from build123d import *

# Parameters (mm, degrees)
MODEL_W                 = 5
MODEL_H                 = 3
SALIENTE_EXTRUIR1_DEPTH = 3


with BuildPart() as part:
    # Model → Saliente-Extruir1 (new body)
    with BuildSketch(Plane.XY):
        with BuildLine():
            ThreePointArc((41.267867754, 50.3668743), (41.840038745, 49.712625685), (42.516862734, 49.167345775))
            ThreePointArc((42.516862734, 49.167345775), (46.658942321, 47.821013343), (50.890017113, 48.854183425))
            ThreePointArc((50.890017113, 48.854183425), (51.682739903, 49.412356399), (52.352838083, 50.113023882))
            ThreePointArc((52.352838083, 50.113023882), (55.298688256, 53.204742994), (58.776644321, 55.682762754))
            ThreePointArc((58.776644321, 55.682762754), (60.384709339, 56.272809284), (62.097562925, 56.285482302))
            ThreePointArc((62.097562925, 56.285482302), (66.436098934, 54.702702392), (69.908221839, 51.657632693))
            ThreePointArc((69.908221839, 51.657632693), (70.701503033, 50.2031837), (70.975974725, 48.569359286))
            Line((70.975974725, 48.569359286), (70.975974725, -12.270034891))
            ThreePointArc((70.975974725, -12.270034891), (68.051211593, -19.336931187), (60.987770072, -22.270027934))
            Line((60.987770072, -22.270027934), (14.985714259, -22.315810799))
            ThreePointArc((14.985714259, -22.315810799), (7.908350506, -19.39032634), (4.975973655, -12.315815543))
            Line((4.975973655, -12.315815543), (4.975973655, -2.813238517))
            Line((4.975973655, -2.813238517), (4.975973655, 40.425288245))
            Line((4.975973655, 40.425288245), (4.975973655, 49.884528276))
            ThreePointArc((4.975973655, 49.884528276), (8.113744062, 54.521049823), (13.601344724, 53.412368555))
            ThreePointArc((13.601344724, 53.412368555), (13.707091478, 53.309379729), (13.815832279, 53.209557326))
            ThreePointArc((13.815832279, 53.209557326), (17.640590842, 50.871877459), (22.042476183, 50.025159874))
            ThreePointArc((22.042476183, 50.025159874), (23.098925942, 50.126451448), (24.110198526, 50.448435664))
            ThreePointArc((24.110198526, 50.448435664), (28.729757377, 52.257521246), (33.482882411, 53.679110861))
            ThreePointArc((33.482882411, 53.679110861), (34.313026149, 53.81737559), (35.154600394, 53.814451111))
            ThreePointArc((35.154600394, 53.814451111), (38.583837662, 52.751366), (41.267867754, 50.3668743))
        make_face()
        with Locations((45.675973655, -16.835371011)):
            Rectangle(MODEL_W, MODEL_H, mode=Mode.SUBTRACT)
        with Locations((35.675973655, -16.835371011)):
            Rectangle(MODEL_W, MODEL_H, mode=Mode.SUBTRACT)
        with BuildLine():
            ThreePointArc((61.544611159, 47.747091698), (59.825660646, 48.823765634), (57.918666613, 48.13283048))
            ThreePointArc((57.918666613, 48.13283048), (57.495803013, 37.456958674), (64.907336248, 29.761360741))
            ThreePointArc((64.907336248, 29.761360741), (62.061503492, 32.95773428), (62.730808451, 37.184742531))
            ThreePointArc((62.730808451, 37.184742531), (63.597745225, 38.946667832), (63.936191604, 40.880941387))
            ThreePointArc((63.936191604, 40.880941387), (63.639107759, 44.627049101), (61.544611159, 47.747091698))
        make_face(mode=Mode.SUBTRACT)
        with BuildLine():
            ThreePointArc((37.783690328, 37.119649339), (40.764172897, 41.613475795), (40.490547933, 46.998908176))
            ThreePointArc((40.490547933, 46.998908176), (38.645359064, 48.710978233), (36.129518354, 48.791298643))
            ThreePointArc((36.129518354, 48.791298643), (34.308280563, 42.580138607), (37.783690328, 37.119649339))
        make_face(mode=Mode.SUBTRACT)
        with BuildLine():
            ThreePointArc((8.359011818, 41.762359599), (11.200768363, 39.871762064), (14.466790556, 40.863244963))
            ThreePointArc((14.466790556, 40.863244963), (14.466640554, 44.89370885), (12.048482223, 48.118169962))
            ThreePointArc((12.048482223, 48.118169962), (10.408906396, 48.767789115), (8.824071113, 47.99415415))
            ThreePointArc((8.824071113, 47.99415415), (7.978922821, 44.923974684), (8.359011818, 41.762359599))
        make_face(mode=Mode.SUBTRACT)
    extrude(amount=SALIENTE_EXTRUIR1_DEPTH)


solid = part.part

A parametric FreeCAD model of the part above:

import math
import FreeCAD as App
import Part
import Sketcher


def add_polygon(sketch, points):
    """Adds a closed chain of lines whose ends are joined by coincident constraints."""
    first, n = sketch.GeometryCount, len(points)
    for a, b in zip(points, points[1:] + points[:1]):
        sketch.addGeometry(Part.LineSegment(App.Vector(*a, 0), App.Vector(*b, 0)), False)
    for i in range(n):
        sketch.addConstraint(Sketcher.Constraint("Coincident", first + i, 2, first + (i + 1) % n, 1))

doc = App.newDocument("Part")
body = doc.addObject("PartDesign::Body", "Body")

# Sketch on XY plane
sketch1 = body.newObject("Sketcher::SketchObject", "Sketch")
sketch1.AttachmentSupport = (doc.getObject("XY_Plane"), [""])
sketch1.MapMode = "FlatFace"
sketch1.addGeometry(Part.ArcOfCircle(Part.Circle(App.Vector(45.303439, 53.318851, 0), App.Vector(0, 0, 1), 5), math.radians(-143.814938), math.radians(-123.870333)), False)  # 0
sketch1.addGeometry(Part.ArcOfCircle(Part.Circle(App.Vector(34.410126, 45.350511, 0), App.Vector(0, 0, 1), 8.496618), math.radians(36.185062), math.radians(84.973293)), False)  # 1
sketch1.addGeometry(Part.ArcOfCircle(Part.Circle(App.Vector(34.7165, 48.833681, 0), App.Vector(0, 0, 1), 5), math.radians(84.973293), math.radians(104.283711)), False)  # 2
sketch1.addGeometry(Part.ArcOfCircle(Part.Circle(App.Vector(48.298899, -4.515558, 0), App.Vector(0, 0, 1), 60.051093), math.radians(104.283711), math.radians(113.753462)), False)  # 3
sketch1.addGeometry(Part.ArcOfCircle(Part.Circle(App.Vector(22.096189, 55.024871, 0), App.Vector(0, 0, 1), 5), math.radians(-90.61551), math.radians(-66.246538)), False)  # 4
sketch1.addGeometry(Part.ArcOfCircle(Part.Circle(App.Vector(22.177489, 62.592603, 0), App.Vector(0, 0, 1), 12.568168), math.radians(-131.705679), math.radians(-90.61551)), False)  # 5
sketch1.addGeometry(Part.ArcOfCircle(Part.Circle(App.Vector(17.142354, 56.942418, 0), App.Vector(0, 0, 1), 5), math.radians(-135.088802), math.radians(-131.705679)), False)  # 6
sketch1.addGeometry(Part.ArcOfCircle(Part.Circle(App.Vector(10.025303, 49.847395, 0), App.Vector(0, 0, 1), 5.049466), math.radians(44.911198), math.radians(179.578648)), False)  # 7
sketch1.addGeometry(Part.LineSegment(App.Vector(4.975974, 49.884528, 0), App.Vector(4.975974, -12.315816, 0)), False)  # 8
sketch1.addGeometry(Part.ArcOfCircle(Part.Circle(App.Vector(14.975974, -12.315816, 0), App.Vector(0, 0, 1), 10), math.radians(-180), math.radians(-89.94419)), False)  # 9
sketch1.addGeometry(Part.LineSegment(App.Vector(14.985714, -22.315811, 0), App.Vector(60.98777, -22.270028, 0)), False)  # 10
sketch1.addGeometry(Part.ArcOfCircle(Part.Circle(App.Vector(60.975975, -12.270035, 0), App.Vector(0, 0, 1), 10), math.radians(-89.932418), math.radians(0)), False)  # 11
sketch1.addGeometry(Part.LineSegment(App.Vector(70.975975, -12.270035, 0), App.Vector(70.975975, 48.569359, 0)), False)  # 12
sketch1.addGeometry(Part.ArcOfCircle(Part.Circle(App.Vector(65.975975, 48.569359, 0), App.Vector(0, 0, 1), 5), math.radians(0), math.radians(38.145068)), False)  # 13
sketch1.addGeometry(Part.ArcOfCircle(Part.Circle(App.Vector(60.039709, 43.907188, 0), App.Vector(0, 0, 1), 12.548185), math.radians(38.145068), math.radians(80.561077)), False)  # 14
sketch1.addGeometry(Part.ArcOfCircle(Part.Circle(App.Vector(61.277582, 51.353177, 0), App.Vector(0, 0, 1), 5), math.radians(80.561077), math.radians(120.012412)), False)  # 15
sketch1.addGeometry(Part.ArcOfCircle(Part.Circle(App.Vector(70.006817, 36.24126, 0), App.Vector(0, 0, 1), 22.451922), math.radians(120.012412), math.radians(141.841208)), False)  # 16
sketch1.addGeometry(Part.ArcOfCircle(Part.Circle(App.Vector(48.421331, 53.202239, 0), App.Vector(0, 0, 1), 5), math.radians(-60.413482), math.radians(-38.158792)), False)  # 17
sketch1.addGeometry(Part.ArcOfCircle(Part.Circle(App.Vector(46.956685, 55.781894, 0), App.Vector(0, 0, 1), 7.966447), math.radians(-123.870333), math.radians(-60.413482)), False)  # 18
add_polygon(sketch1, [(43.175974, -18.335371), (43.175974, -15.335371), (48.175974, -15.335371), (48.175974, -18.335371)])  # lines 19-22
add_polygon(sketch1, [(33.175974, -18.335371), (33.175974, -15.335371), (38.175974, -15.335371), (38.175974, -18.335371)])  # lines 23-26
sketch1.addGeometry(Part.ArcOfCircle(Part.Circle(App.Vector(56.632549, 42.186562, 0), App.Vector(0, 0, 1), 7.419423), math.radians(-10.135307), math.radians(48.543254)), False)  # 27
sketch1.addGeometry(Part.ArcOfCircle(Part.Circle(App.Vector(57.002929, 41.097331, 0), App.Vector(0, 0, 1), 6.936639), math.radians(-34.336127), math.radians(-1.787645)), False)  # 28
sketch1.addGeometry(Part.ArcOfCircle(Part.Circle(App.Vector(66.859523, 34.364508, 0), App.Vector(0, 0, 1), 5), math.radians(145.663873), math.radians(247.018291)), False)  # 29
sketch1.addGeometry(Part.ArcOfCircle(Part.Circle(App.Vector(70.224564, 42.299092, 0), App.Vector(0, 0, 1), 13.61865), math.radians(154.636225), math.radians(247.018291)), False)  # 30
sketch1.addGeometry(Part.ArcOfCircle(Part.Circle(App.Vector(59.580831, 46.522364, 0), App.Vector(0, 0, 1), 2.314388), math.radians(31.950069), math.radians(135.905018)), False)  # 31
sketch1.addGeometry(Part.ArcOfCircle(Part.Circle(App.Vector(42.06233, 43.679086, 0), App.Vector(0, 0, 1), 7.831537), math.radians(139.249032), math.radians(236.884085)), False)  # 32
sketch1.addGeometry(Part.ArcOfCircle(Part.Circle(App.Vector(37.280106, 45.389209, 0), App.Vector(0, 0, 1), 3.591388), math.radians(26.62896), math.radians(108.685551)), False)  # 33
sketch1.addGeometry(Part.ArcOfCircle(Part.Circle(App.Vector(32.452449, 43.890838, 0), App.Vector(0, 0, 1), 8.61807), math.radians(-51.785157), math.radians(21.139857)), False)  # 34
sketch1.addGeometry(Part.ArcOfCircle(Part.Circle(App.Vector(16.209261, 44.30977, 0), App.Vector(0, 0, 1), 8.253225), math.radians(153.485935), math.radians(197.978279)), False)  # 35
sketch1.addGeometry(Part.ArcOfCircle(Part.Circle(App.Vector(10.492832, 46.585733, 0), App.Vector(0, 0, 1), 2.183669), math.radians(44.5693), math.radians(139.835897)), False)  # 36
sketch1.addGeometry(Part.ArcOfCircle(Part.Circle(App.Vector(8.42027, 42.878252, 0), App.Vector(0, 0, 1), 6.373435), math.radians(-18.430684), math.radians(55.300582)), False)  # 37
sketch1.addGeometry(Part.ArcOfCircle(Part.Circle(App.Vector(11.783191, 43.828222, 0), App.Vector(0, 0, 1), 3.999099), math.radians(-148.896741), math.radians(-47.851777)), False)  # 38
sketch1.addConstraint(Sketcher.Constraint("Tangent", 0, 1, 1, 1))
sketch1.addConstraint(Sketcher.Constraint("Tangent", 1, 2, 2, 1))
sketch1.addConstraint(Sketcher.Constraint("Tangent", 2, 2, 3, 1))
sketch1.addConstraint(Sketcher.Constraint("Tangent", 3, 2, 4, 2))
sketch1.addConstraint(Sketcher.Constraint("Tangent", 4, 1, 5, 2))
sketch1.addConstraint(Sketcher.Constraint("Tangent", 5, 1, 6, 2))
sketch1.addConstraint(Sketcher.Constraint("Tangent", 6, 1, 7, 1))
sketch1.addConstraint(Sketcher.Constraint("Coincident", 7, 2, 8, 1))
sketch1.addConstraint(Sketcher.Constraint("Tangent", 8, 2, 9, 1))
sketch1.addConstraint(Sketcher.Constraint("Coincident", 9, 2, 10, 1))
sketch1.addConstraint(Sketcher.Constraint("Coincident", 10, 2, 11, 1))
sketch1.addConstraint(Sketcher.Constraint("Tangent", 11, 2, 12, 1))
sketch1.addConstraint(Sketcher.Constraint("Tangent", 12, 2, 13, 1))
sketch1.addConstraint(Sketcher.Constraint("Tangent", 13, 2, 14, 1))
sketch1.addConstraint(Sketcher.Constraint("Tangent", 14, 2, 15, 1))
sketch1.addConstraint(Sketcher.Constraint("Tangent", 15, 2, 16, 1))
sketch1.addConstraint(Sketcher.Constraint("Tangent", 16, 2, 17, 2))
sketch1.addConstraint(Sketcher.Constraint("Tangent", 17, 1, 18, 2))
sketch1.addConstraint(Sketcher.Constraint("Tangent", 18, 1, 0, 2))
sketch1.addConstraint(Sketcher.Constraint("Coincident", 27, 1, 28, 2))
sketch1.addConstraint(Sketcher.Constraint("Tangent", 28, 1, 29, 1))
sketch1.addConstraint(Sketcher.Constraint("Tangent", 29, 2, 30, 2))
sketch1.addConstraint(Sketcher.Constraint("Coincident", 30, 1, 31, 2))
sketch1.addConstraint(Sketcher.Constraint("Coincident", 31, 1, 27, 2))
sketch1.addConstraint(Sketcher.Constraint("Coincident", 32, 1, 33, 2))
sketch1.addConstraint(Sketcher.Constraint("Coincident", 33, 1, 34, 2))
sketch1.addConstraint(Sketcher.Constraint("Coincident", 34, 1, 32, 2))
sketch1.addConstraint(Sketcher.Constraint("Coincident", 35, 1, 36, 2))
sketch1.addConstraint(Sketcher.Constraint("Coincident", 36, 1, 37, 2))
sketch1.addConstraint(Sketcher.Constraint("Coincident", 37, 1, 38, 2))
sketch1.addConstraint(Sketcher.Constraint("Coincident", 38, 1, 35, 2))
sketch1.addConstraint(Sketcher.Constraint("Vertical", 8))
sketch1.addConstraint(Sketcher.Constraint("Vertical", 12))
sketch1.addConstraint(Sketcher.Constraint("Vertical", 19))
sketch1.addConstraint(Sketcher.Constraint("Horizontal", 20))
sketch1.addConstraint(Sketcher.Constraint("Vertical", 21))
sketch1.addConstraint(Sketcher.Constraint("Horizontal", 22))
sketch1.addConstraint(Sketcher.Constraint("Vertical", 23))
sketch1.addConstraint(Sketcher.Constraint("Horizontal", 24))
sketch1.addConstraint(Sketcher.Constraint("Vertical", 25))
sketch1.addConstraint(Sketcher.Constraint("Horizontal", 26))
sketch1.addConstraint(Sketcher.Constraint("Equal", 0, 2))
sketch1.addConstraint(Sketcher.Constraint("Equal", 2, 4))
sketch1.addConstraint(Sketcher.Constraint("Equal", 4, 6))
sketch1.addConstraint(Sketcher.Constraint("Equal", 9, 11))
sketch1.addConstraint(Sketcher.Constraint("Equal", 6, 13))
sketch1.addConstraint(Sketcher.Constraint("Equal", 13, 15))
sketch1.addConstraint(Sketcher.Constraint("Equal", 15, 17))
sketch1.addConstraint(Sketcher.Constraint("Equal", 17, 29))
sketch1.addConstraint(Sketcher.Constraint("Horizontal", 20, 2, 23, 2))
sketch1.addConstraint(Sketcher.Constraint("Horizontal", 22, 2, 25, 2))
sketch1.addConstraint(Sketcher.Constraint("Equal", 22, 24))
sketch1.addConstraint(Sketcher.Constraint("Radius", 0, 5.0))
sketch1.addConstraint(Sketcher.Constraint("Radius", 9, 10.0))
sketch1.addConstraint(Sketcher.Constraint("DistanceX", 20, 1, 20, 2, 5.0))
sketch1.addConstraint(Sketcher.Constraint("DistanceY", 19, 1, 19, 2, 3.0))
sketch1.addConstraint(Sketcher.Constraint("Radius", 38, 3.999099))
sketch1.addConstraint(Sketcher.Constraint("Radius", 1, 8.496618))
sketch1.addConstraint(Sketcher.Constraint("Radius", 5, 12.568168))
sketch1.addConstraint(Sketcher.Constraint("Radius", 16, 22.451922))
sketch1.addConstraint(Sketcher.Constraint("Radius", 28, 6.936639))
sketch1.addConstraint(Sketcher.Constraint("Radius", 30, 13.61865))
sketch1.addConstraint(Sketcher.Constraint("Radius", 31, 2.314388))
sketch1.addConstraint(Sketcher.Constraint("Radius", 33, 3.591388))
sketch1.addConstraint(Sketcher.Constraint("Radius", 34, 8.61807))
sketch1.addConstraint(Sketcher.Constraint("Radius", 36, 2.183669))
sketch1.addConstraint(Sketcher.Constraint("Radius", 3, 60.051093))
sketch1.addConstraint(Sketcher.Constraint("Radius", 7, 5.049466))
sketch1.addConstraint(Sketcher.Constraint("Radius", 14, 12.548185))
sketch1.addConstraint(Sketcher.Constraint("Radius", 18, 7.966447))
sketch1.addConstraint(Sketcher.Constraint("Radius", 27, 7.419423))
sketch1.addConstraint(Sketcher.Constraint("Radius", 32, 7.831537))
sketch1.addConstraint(Sketcher.Constraint("Radius", 35, 8.253225))
sketch1.addConstraint(Sketcher.Constraint("Radius", 37, 6.373435))
sketch1.addConstraint(Sketcher.Constraint("DistanceX", -1, 1, 2, 3, 34.7165))
sketch1.addConstraint(Sketcher.Constraint("DistanceX", -1, 1, 3, 3, 48.298899))
sketch1.addConstraint(Sketcher.Constraint("DistanceX", -1, 1, 1, 2, 35.1546))
sketch1.addConstraint(Sketcher.Constraint("DistanceX", -1, 1, 3, 2, 24.110199))
sketch1.addConstraint(Sketcher.Constraint("DistanceY", -1, 1, 32, 1, 48.791299))
sketch1.addConstraint(Sketcher.Constraint("Distance", 10, 46.002079))
sketch1.addConstraint(Sketcher.Constraint("DistanceY", 8, 2, 8, 1, 62.200344))
sketch1.addConstraint(Sketcher.Constraint("DistanceY", 12, 1, 12, 2, 60.839394))
sketch1.addConstraint(Sketcher.Constraint("DistanceX", -1, 1, 0, 3, 45.303439))
sketch1.addConstraint(Sketcher.Constraint("DistanceY", -1, 1, 0, 3, 53.318851))
sketch1.addConstraint(Sketcher.Constraint("DistanceX", -1, 1, 5, 3, 22.177489))
sketch1.addConstraint(Sketcher.Constraint("DistanceY", -1, 1, 6, 3, 56.942418))
sketch1.addConstraint(Sketcher.Constraint("DistanceY", -1, 1, 13, 3, 48.569359))
sketch1.addConstraint(Sketcher.Constraint("DistanceX", -1, 1, 14, 3, 60.039709))
sketch1.addConstraint(Sketcher.Constraint("DistanceY", -1, 1, 16, 3, 36.24126))
sketch1.addConstraint(Sketcher.Constraint("DistanceX", -1, 1, 17, 3, 48.421331))
sketch1.addConstraint(Sketcher.Constraint("DistanceY", -1, 1, 17, 3, 53.202239))
sketch1.addConstraint(Sketcher.Constraint("DistanceX", -1, 1, 27, 3, 56.632549))
sketch1.addConstraint(Sketcher.Constraint("DistanceX", -1, 1, 28, 3, 57.002929))
sketch1.addConstraint(Sketcher.Constraint("DistanceY", -1, 1, 28, 3, 41.097331))
sketch1.addConstraint(Sketcher.Constraint("DistanceY", -1, 1, 29, 3, 34.364508))
sketch1.addConstraint(Sketcher.Constraint("DistanceX", -1, 1, 31, 3, 59.580831))
sketch1.addConstraint(Sketcher.Constraint("DistanceX", -1, 1, 32, 3, 42.06233))
sketch1.addConstraint(Sketcher.Constraint("DistanceY", -1, 1, 33, 3, 45.389209))
sketch1.addConstraint(Sketcher.Constraint("DistanceX", -1, 1, 34, 3, 32.452449))
sketch1.addConstraint(Sketcher.Constraint("DistanceY", -1, 1, 34, 3, 43.890838))
sketch1.addConstraint(Sketcher.Constraint("DistanceX", -1, 1, 35, 3, 16.209261))
sketch1.addConstraint(Sketcher.Constraint("DistanceY", -1, 1, 35, 3, 44.30977))
sketch1.addConstraint(Sketcher.Constraint("DistanceX", -1, 1, 36, 3, 10.492832))
sketch1.addConstraint(Sketcher.Constraint("DistanceX", -1, 1, 37, 3, 8.42027))
sketch1.addConstraint(Sketcher.Constraint("DistanceY", -1, 1, 37, 3, 42.878252))
sketch1.addConstraint(Sketcher.Constraint("DistanceX", -1, 1, 38, 3, 11.783191))
sketch1.addConstraint(Sketcher.Constraint("DistanceY", -1, 1, 6, 1, 53.412369))
sketch1.addConstraint(Sketcher.Constraint("DistanceY", -1, 1, 7, 2, 49.884528))
sketch1.addConstraint(Sketcher.Constraint("DistanceX", -1, 1, 10, 2, 60.98777))
sketch1.addConstraint(Sketcher.Constraint("DistanceX", -1, 1, 13, 2, 69.908222))
sketch1.addConstraint(Sketcher.Constraint("DistanceY", 19, 2, -1, 1, 15.335371))
sketch1.addConstraint(Sketcher.Constraint("DistanceX", -1, 1, 27, 1, 63.936192))
sketch1.addConstraint(Sketcher.Constraint("DistanceY", -1, 1, 29, 2, 29.761361))
sketch1.addConstraint(Sketcher.Constraint("DistanceY", -1, 1, 30, 1, 48.13283))
sketch1.addConstraint(Sketcher.Constraint("DistanceX", -1, 1, 32, 1, 36.129518))
sketch1.addConstraint(Sketcher.Constraint("DistanceX", -1, 1, 35, 1, 8.824071))
sketch1.addConstraint(Sketcher.Constraint("DistanceX", -1, 1, 37, 1, 14.466791))
sketch1.addConstraint(Sketcher.Constraint("DistanceX", -1, 1, 19, 2, 43.175974))
sketch1.addConstraint(Sketcher.Constraint("DistanceX", -1, 1, 23, 2, 33.175974))
pad1 = body.newObject("PartDesign::Pad", "Pad")
pad1.Profile = sketch1
pad1.Length = 3

doc.recompute()
